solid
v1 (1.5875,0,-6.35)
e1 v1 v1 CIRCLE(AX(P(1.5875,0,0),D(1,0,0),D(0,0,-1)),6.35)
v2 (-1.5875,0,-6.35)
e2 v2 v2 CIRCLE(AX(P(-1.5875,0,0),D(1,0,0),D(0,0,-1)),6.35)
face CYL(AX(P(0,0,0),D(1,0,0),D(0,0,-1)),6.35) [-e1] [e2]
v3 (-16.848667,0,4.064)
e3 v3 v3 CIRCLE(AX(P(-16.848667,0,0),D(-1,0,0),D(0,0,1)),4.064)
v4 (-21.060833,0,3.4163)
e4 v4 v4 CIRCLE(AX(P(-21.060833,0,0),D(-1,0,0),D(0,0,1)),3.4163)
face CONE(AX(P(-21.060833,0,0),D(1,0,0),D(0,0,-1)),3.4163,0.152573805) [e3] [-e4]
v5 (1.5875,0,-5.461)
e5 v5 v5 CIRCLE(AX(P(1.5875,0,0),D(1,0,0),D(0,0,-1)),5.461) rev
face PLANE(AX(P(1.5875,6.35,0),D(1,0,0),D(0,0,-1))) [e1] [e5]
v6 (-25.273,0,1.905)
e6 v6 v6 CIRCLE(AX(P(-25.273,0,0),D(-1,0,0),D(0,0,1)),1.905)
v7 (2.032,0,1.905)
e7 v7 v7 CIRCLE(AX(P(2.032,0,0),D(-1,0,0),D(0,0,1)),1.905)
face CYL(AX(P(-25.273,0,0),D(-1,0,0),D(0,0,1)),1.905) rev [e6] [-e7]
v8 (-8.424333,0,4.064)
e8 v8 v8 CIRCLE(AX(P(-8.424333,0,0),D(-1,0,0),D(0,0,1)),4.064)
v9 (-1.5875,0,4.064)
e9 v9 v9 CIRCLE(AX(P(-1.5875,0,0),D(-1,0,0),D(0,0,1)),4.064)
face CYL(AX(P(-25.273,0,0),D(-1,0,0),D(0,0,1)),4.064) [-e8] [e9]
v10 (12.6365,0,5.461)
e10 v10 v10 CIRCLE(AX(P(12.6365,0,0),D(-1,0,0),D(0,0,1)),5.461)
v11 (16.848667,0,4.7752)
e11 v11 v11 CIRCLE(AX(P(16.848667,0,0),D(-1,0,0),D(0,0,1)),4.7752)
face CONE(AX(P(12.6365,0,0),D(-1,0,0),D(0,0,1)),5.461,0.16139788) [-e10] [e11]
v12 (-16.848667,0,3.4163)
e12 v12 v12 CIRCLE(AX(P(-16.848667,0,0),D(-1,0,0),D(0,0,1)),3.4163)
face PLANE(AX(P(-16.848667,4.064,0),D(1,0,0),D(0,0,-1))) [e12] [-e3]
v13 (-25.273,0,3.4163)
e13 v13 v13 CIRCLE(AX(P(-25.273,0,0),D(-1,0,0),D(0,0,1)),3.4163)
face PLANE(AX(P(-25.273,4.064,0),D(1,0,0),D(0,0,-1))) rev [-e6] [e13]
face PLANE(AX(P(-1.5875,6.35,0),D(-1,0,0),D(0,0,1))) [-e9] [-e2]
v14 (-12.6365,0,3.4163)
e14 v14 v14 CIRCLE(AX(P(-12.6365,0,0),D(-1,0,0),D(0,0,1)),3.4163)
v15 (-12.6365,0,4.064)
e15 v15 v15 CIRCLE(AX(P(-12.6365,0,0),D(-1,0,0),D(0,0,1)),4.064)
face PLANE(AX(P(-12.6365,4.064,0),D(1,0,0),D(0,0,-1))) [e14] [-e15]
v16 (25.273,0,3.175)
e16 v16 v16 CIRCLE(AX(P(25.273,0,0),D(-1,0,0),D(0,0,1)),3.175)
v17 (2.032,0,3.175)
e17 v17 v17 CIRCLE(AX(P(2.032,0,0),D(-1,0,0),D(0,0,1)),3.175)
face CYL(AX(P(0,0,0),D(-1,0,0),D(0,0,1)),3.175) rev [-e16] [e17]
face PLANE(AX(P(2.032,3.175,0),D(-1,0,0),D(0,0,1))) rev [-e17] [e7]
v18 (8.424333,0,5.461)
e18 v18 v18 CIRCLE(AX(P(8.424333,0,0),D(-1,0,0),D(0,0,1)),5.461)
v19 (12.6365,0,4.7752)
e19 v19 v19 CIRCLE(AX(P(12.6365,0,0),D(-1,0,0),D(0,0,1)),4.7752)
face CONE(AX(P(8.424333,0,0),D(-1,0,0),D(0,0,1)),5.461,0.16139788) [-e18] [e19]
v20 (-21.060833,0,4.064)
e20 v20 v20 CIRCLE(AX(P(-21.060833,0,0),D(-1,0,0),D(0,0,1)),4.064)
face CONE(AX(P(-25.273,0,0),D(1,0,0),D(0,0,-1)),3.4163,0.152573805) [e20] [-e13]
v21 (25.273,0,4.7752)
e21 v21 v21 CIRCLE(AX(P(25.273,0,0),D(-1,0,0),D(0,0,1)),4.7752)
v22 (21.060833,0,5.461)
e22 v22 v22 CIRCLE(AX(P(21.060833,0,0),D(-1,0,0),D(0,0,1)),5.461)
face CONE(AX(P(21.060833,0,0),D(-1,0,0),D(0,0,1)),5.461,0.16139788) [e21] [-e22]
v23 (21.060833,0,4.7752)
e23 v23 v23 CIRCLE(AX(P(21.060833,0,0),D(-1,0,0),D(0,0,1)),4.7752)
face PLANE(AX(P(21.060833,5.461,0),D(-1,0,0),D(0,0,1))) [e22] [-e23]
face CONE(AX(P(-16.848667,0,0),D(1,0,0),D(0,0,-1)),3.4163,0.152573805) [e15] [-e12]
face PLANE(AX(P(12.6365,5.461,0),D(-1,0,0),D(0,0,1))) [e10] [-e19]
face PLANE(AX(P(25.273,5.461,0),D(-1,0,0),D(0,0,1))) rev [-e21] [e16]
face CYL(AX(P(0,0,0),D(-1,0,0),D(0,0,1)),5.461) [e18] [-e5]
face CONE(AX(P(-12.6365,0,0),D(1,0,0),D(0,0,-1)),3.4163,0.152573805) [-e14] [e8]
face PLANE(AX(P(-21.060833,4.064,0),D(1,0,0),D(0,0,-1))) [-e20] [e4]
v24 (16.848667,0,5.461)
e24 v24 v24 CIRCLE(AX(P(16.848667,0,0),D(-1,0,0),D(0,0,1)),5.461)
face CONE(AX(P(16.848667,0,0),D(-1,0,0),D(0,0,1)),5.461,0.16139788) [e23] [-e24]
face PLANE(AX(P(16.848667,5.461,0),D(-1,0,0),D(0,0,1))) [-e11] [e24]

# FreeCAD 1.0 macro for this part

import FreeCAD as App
import Part
import Sketcher

V = App.Vector
Q = App.Units.Quantity


def add_polygon(sketch, points):
    """Adds a closed chain of lines whose ends are joined by coincident constraints."""
    first, n = sketch.GeometryCount, len(points)
    for a, b in zip(points, points[1:] + points[:1]):
        sketch.addGeometry(Part.LineSegment(App.Vector(*a, 0), App.Vector(*b, 0)), False)
    for i in range(n):
        sketch.addConstraint(Sketcher.Constraint("Coincident", first + i, 2, first + (i + 1) % n, 1))

doc = App.newDocument("Part")
params = doc.addObject("Spreadsheet::Sheet", "Params")
for row, (alias, value) in enumerate([
    ("sketch1_width", "0.995 in"),
    ("sketch1_height", "0.085 in"),
    ("revolution_angle", "360 deg"),
    ("sketch2_width", "0.125 in"),
    ("sketch2_height", "0.175 in"),
    ("revolution2_angle", "360 deg"),
    ("groove_angle", "360 deg"),
    ("linearpattern_pitch", "4.212167 mm"),
    ("sketch4_height", "0.09 in"),
    ("sketch4_width", "0.995 in"),
    ("revolution3_angle", "360 deg"),
    ("sketch5_height", "0.027 in"),
    ("groove2_angle", "360 deg"),
    ("linearpattern2_pitch", "4.212167 mm"),
    ("sketch6_width", "0.08 in"),
    ("sketch6_height", "0.05 in"),
    ("revolution4_angle", "360 deg"),
], start=1):
    params.set(f"A{row}", alias)
    params.set(f"B{row}", "=" + value)
    params.setAlias(f"B{row}", alias)

body = doc.addObject("PartDesign::Body", "Body")

sketch1 = body.newObject("Sketcher::SketchObject", "Sketch")
sketch1.AttachmentSupport = (doc.getObject("XY_Plane"), [""])
sketch1.MapMode = "FlatFace"
add_polygon(sketch1, [(-25.273, 4.064), (-25.273, 1.905), (0, 1.905), (0, 4.064)])
sketch1.addConstraint([
    Sketcher.Constraint("Vertical", 0),
    Sketcher.Constraint("Horizontal", 1),
    Sketcher.Constraint("Vertical", 2),
    Sketcher.Constraint("Horizontal", 3),
    Sketcher.Constraint("PointOnObject", 1, 2, -2),
    Sketcher.Constraint("DistanceX", 1, 1, 1, 2, Q("0.995 in")),
    Sketcher.Constraint("DistanceY", 0, 2, 0, 1, Q("0.085 in")),
    Sketcher.Constraint("DistanceY", -1, 1, 2, 2, Q("0.16 in")),
])
sketch1.setExpression("Constraints[9]", "Params.sketch1_width")
sketch1.setExpression("Constraints[10]", "Params.sketch1_height")
revolution = body.newObject("PartDesign::Revolution", "Revolution")
revolution.Profile = sketch1
revolution.ReferenceAxis = (sketch1, ["H_Axis"])
revolution.setExpression("Angle", "Params.revolution_angle")

sketch2 = body.newObject("Sketcher::SketchObject", "Sketch001")
sketch2.AttachmentSupport = (doc.getObject("XY_Plane"), [""])
sketch2.MapMode = "FlatFace"
add_polygon(sketch2, [(-1.5875, 6.35), (-1.5875, 1.905), (1.5875, 1.905), (1.5875, 6.35)])
sketch2.addConstraint([
    Sketcher.Constraint("Vertical", 0),
    Sketcher.Constraint("Horizontal", 1),
    Sketcher.Constraint("Vertical", 2),
    Sketcher.Constraint("Horizontal", 3),
    Sketcher.Constraint("DistanceX", 1, 1, 1, 2, Q("0.125 in")),
    Sketcher.Constraint("DistanceY", 0, 2, 0, 1, Q("0.175 in")),
    Sketcher.Constraint("DistanceY", -1, 1, 2, 2, Q("0.25 in")),
    Sketcher.Constraint("DistanceX", 0, 2, -1, 1, Q("0.0625 in")),
])
sketch2.setExpression("Constraints[8]", "Params.sketch2_width")
sketch2.setExpression("Constraints[9]", "Params.sketch2_height")
revolution2 = body.newObject("PartDesign::Revolution", "Revolution001")
revolution2.Profile = sketch2
revolution2.ReferenceAxis = (sketch2, ["H_Axis"])
revolution2.setExpression("Angle", "Params.revolution2_angle")

sketch3 = body.newObject("Sketcher::SketchObject", "Sketch002")
sketch3.AttachmentSupport = (doc.getObject("XY_Plane"), [""])
sketch3.MapMode = "FlatFace"
add_polygon(sketch3, [(-25.273, 4.064), (-25.273, 3.4163), (-21.060833, 4.064)])
sketch3.addConstraint([
    Sketcher.Constraint("Vertical", 0),
    Sketcher.Constraint("Horizontal", 2),
    Sketcher.Constraint("DistanceY", -1, 1, 1, 2, Q("0.16 in")),
    Sketcher.Constraint("DistanceY", 0, 2, 0, 1, Q("0.0255 in")),
    Sketcher.Constraint("DistanceX", 0, 2, -1, 1, Q("0.995 in")),
    Sketcher.Constraint("DistanceX", 2, 2, 2, 1, Q("4.212167 mm")),
])
groove = body.newObject("PartDesign::Groove", "Groove")
groove.Profile = sketch3
groove.ReferenceAxis = (sketch3, ["H_Axis"])
groove.setExpression("Angle", "Params.groove_angle")
doc.recompute()

linearpattern = body.newObject("PartDesign::LinearPattern", "LinearPattern")
linearpattern.Originals = [groove]
linearpattern.Direction = (doc.getObject("X_Axis"), [""])
linearpattern.Mode = "offset"
linearpattern.setExpression("Offset", "Params.linearpattern_pitch")
linearpattern.Occurrences = 4
body.Tip = linearpattern
body2 = doc.addObject("PartDesign::Body", "Body001")

sketch4 = body2.newObject("Sketcher::SketchObject", "Sketch003")
sketch4.AttachmentSupport = (doc.getObject("XY_Plane001"), [""])
sketch4.MapMode = "FlatFace"
add_polygon(sketch4, [(0, 5.461), (0, 3.175), (25.273, 3.175), (25.273, 5.461)])
sketch4.addConstraint([
    Sketcher.Constraint("Vertical", 0),
    Sketcher.Constraint("Horizontal", 1),
    Sketcher.Constraint("Vertical", 2),
    Sketcher.Constraint("Horizontal", 3),
    Sketcher.Constraint("PointOnObject", 0, 2, -2),
    Sketcher.Constraint("DistanceY", 0, 2, 0, 1, Q("0.09 in")),
    Sketcher.Constraint("DistanceX", 1, 1, 1, 2, Q("0.995 in")),
    Sketcher.Constraint("DistanceY", -1, 1, 0, 2, Q("0.125 in")),
])
sketch4.setExpression("Constraints[9]", "Params.sketch4_height")
sketch4.setExpression("Constraints[10]", "Params.sketch4_width")
revolution3 = body2.newObject("PartDesign::Revolution", "Revolution002")
revolution3.Profile = sketch4
revolution3.ReferenceAxis = (sketch4, ["H_Axis"])
revolution3.setExpression("Angle", "Params.revolution3_angle")

sketch5 = body2.newObject("Sketcher::SketchObject", "Sketch004")
sketch5.AttachmentSupport = (doc.getObject("XY_Plane001"), [""])
sketch5.MapMode = "FlatFace"
add_polygon(sketch5, [(25.273, 4.7752), (25.273, 5.461), (21.060833, 5.461)])
sketch5.addConstraint([
    Sketcher.Constraint("Vertical", 0),
    Sketcher.Constraint("Horizontal", 1),
    Sketcher.Constraint("DistanceY", 0, 1, 0, 2, Q("0.027 in")),
    Sketcher.Constraint("DistanceX", -1, 1, 0, 2, Q("0.995 in")),
    Sketcher.Constraint("DistanceY", -1, 1, 0, 2, Q("0.215 in")),
    Sketcher.Constraint("Distance", 2, Q("4.26763 mm")),
])
sketch5.setExpression("Constraints[5]", "Params.sketch5_height")
groove2 = body2.newObject("PartDesign::Groove", "Groove001")
groove2.Profile = sketch5
groove2.ReferenceAxis = (sketch5, ["H_Axis"])
groove2.setExpression("Angle", "Params.groove2_angle")
doc.recompute()

linearpattern2 = body2.newObject("PartDesign::LinearPattern", "LinearPattern001")
linearpattern2.Originals = [groove2]
linearpattern2.Direction = (doc.getObject("X_Axis001"), [""])
linearpattern2.Mode = "offset"
linearpattern2.setExpression("Offset", "Params.linearpattern2_pitch")
linearpattern2.Occurrences = 4
linearpattern2.Reversed = True
body2.Tip = linearpattern2
doc.recompute()

boolean = body.newObject("PartDesign::Boolean", "Boolean")
boolean.Type = "Fuse"
boolean.addObjects([body2])

sketch6 = body.newObject("Sketcher::SketchObject", "Sketch005")
sketch6.AttachmentSupport = (doc.getObject("XY_Plane"), [""])
sketch6.MapMode = "FlatFace"
add_polygon(sketch6, [(0, 3.175), (0, 1.905), (2.032, 1.905), (2.032, 3.175)])
sketch6.addConstraint([
    Sketcher.Constraint("Vertical", 0),
    Sketcher.Constraint("Horizontal", 1),
    Sketcher.Constraint("Vertical", 2),
    Sketcher.Constraint("Horizontal", 3),
    Sketcher.Constraint("PointOnObject", 0, 2, -2),
    Sketcher.Constraint("DistanceX", 1, 1, 1, 2, Q("0.08 in")),
    Sketcher.Constraint("DistanceY", 0, 2, 0, 1, Q("0.05 in")),
    Sketcher.Constraint("DistanceY", -1, 1, 0, 2, Q("0.075 in")),
])
sketch6.setExpression("Constraints[9]", "Params.sketch6_width")
sketch6.setExpression("Constraints[10]", "Params.sketch6_height")
revolution4 = body.newObject("PartDesign::Revolution", "Revolution003")
revolution4.Profile = sketch6
revolution4.ReferenceAxis = (sketch6, ["H_Axis"])
revolution4.setExpression("Angle", "Params.revolution4_angle")

doc.recompute()
